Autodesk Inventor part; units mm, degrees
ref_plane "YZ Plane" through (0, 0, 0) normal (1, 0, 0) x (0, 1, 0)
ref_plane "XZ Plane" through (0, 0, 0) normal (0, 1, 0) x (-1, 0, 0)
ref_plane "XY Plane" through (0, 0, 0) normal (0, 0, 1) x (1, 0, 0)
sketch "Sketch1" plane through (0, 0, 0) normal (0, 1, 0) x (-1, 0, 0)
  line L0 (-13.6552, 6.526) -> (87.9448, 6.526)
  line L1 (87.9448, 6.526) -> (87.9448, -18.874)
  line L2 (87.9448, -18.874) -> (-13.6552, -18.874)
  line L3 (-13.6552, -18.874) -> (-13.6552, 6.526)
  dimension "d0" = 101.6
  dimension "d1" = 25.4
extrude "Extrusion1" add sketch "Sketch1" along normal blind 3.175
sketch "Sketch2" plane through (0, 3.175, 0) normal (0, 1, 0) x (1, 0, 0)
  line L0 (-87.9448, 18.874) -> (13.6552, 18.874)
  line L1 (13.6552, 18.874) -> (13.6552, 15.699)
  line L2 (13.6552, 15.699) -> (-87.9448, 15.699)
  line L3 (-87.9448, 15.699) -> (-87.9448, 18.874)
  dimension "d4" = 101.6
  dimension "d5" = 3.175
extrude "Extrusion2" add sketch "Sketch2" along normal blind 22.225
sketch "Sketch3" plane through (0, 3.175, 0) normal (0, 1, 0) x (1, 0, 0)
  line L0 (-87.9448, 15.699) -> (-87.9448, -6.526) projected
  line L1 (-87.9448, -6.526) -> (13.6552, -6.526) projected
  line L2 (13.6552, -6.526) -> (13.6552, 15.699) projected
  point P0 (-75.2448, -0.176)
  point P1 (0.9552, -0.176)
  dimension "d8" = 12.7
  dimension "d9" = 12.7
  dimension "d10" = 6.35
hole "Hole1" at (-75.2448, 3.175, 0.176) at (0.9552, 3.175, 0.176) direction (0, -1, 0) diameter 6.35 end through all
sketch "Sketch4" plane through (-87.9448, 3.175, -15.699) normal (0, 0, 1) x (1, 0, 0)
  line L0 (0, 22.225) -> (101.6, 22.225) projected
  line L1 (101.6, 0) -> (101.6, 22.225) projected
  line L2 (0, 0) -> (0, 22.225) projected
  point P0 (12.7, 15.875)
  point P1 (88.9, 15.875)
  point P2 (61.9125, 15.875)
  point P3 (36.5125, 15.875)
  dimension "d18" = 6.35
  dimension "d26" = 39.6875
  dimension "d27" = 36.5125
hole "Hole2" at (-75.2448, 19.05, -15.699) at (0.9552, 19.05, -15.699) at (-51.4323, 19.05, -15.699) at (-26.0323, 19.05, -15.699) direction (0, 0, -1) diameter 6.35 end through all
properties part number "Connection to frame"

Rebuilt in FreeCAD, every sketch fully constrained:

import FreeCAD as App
import Part
import Sketcher
from FreeCAD import Vector
Q = App.Units.Quantity

doc = App.newDocument("Part")
body = doc.addObject("PartDesign::Body", "Body")

sketch1 = doc.addObject("Sketcher::SketchObject", "Sketch")
body.addObject(sketch1)
sketch1.AttachmentSupport = (doc.XZ_Plane, [""])
sketch1.MapMode = "FlatFace"
sketch1.addGeometry([
    Part.LineSegment(Vector(-88, 7, 0), Vector(14, 7, 0)),
    Part.LineSegment(Vector(14, 7, 0), Vector(14, -19, 0)),
    Part.LineSegment(Vector(14, -19, 0), Vector(-88, -19, 0)),
    Part.LineSegment(Vector(-88, -19, 0), Vector(-88, 7, 0)),
], False)
sketch1.addConstraint([
    Sketcher.Constraint("Coincident", 0, 2, 1, 1),
    Sketcher.Constraint("Coincident", 1, 2, 2, 1),
    Sketcher.Constraint("Coincident", 2, 2, 3, 1),
    Sketcher.Constraint("Coincident", 3, 2, 0, 1),
    Sketcher.Constraint("Horizontal", 0),
    Sketcher.Constraint("Vertical", 1),
    Sketcher.Constraint("Horizontal", 2),
    Sketcher.Constraint("Vertical", 3),
    Sketcher.Constraint("DistanceX", 0, 1, 0, 2, Q("4 in")),
    Sketcher.Constraint("DistanceY", 1, 2, 1, 1, Q("1 in")),
    Sketcher.Constraint("DistanceX", -1, 1, 0, 2, Q("0.5376 in")),
    Sketcher.Constraint("DistanceY", -1, 1, 0, 2, Q("6.526 mm")),
])
pad1 = doc.addObject("PartDesign::Pad", "Pad")
body.addObject(pad1)
pad1.Profile = sketch1
pad1.Length = Q("0.125 in")
pad1.Reversed = True

sketch2 = doc.addObject("Sketcher::SketchObject", "Sketch001")
body.addObject(sketch2)
sketch2.AttachmentSupport = (doc.XZ_Plane, [""])
sketch2.MapMode = "FlatFace"
sketch2.AttachmentOffset = App.Placement(Vector(0, 0, -0.125 * 25.4), App.Rotation())
sketch2.addGeometry([
    Part.LineSegment(Vector(13.7, -18.9, 0), Vector(-87.9, -18.9, 0)),
    Part.LineSegment(Vector(-87.9, -18.9, 0), Vector(-87.9, -15.7, 0)),
    Part.LineSegment(Vector(-87.9, -15.7, 0), Vector(13.7, -15.7, 0)),
    Part.LineSegment(Vector(13.7, -15.7, 0), Vector(13.7, -18.9, 0)),
], False)
sketch2.addConstraint([
    Sketcher.Constraint("Coincident", 0, 2, 1, 1),
    Sketcher.Constraint("Coincident", 1, 2, 2, 1),
    Sketcher.Constraint("Coincident", 2, 2, 3, 1),
    Sketcher.Constraint("Coincident", 3, 2, 0, 1),
    Sketcher.Constraint("Horizontal", 0),
    Sketcher.Constraint("Vertical", 1),
    Sketcher.Constraint("Horizontal", 2),
    Sketcher.Constraint("Vertical", 3),
    Sketcher.Constraint("DistanceX", 0, 2, 0, 1, Q("4 in")),
    Sketcher.Constraint("DistanceY", 1, 1, 1, 2, Q("0.125 in")),
    Sketcher.Constraint("DistanceX", 0, 2, -1, 1, Q("3.4624 in")),
    Sketcher.Constraint("DistanceY", 0, 2, -1, 1, Q("18.874 mm")),
])
pad2 = doc.addObject("PartDesign::Pad", "Pad001")
body.addObject(pad2)
pad2.Profile = sketch2
pad2.Length = Q("0.875 in")
pad2.Reversed = True

sketch3 = doc.addObject("Sketcher::SketchObject", "Sketch002")
body.addObject(sketch3)
sketch3.AttachmentSupport = (doc.XZ_Plane, [""])
sketch3.MapMode = "FlatFace"
sketch3.AttachmentOffset = App.Placement(Vector(0, 0, -0.125 * 25.4), App.Rotation())
sketch3.addGeometry([
    Part.Circle(Vector(-75.2, 0.2, 0), Vector(0, 0, 1), 3.2),
    Part.Circle(Vector(1, 0.2, 0), Vector(0, 0, 1), 3.2),
], False)
sketch3.addConstraint([
    Sketcher.Constraint("Equal", 0, 1),
    Sketcher.Constraint("Horizontal", 0, 3, 1, 3),
    Sketcher.Constraint("Diameter", 0, Q("0.25 in")),
    Sketcher.Constraint("DistanceX", 0, 3, 1, 3, Q("3 in")),
    Sketcher.Constraint("DistanceX", 0, 3, -1, 1, Q("2.9624 in")),
    Sketcher.Constraint("DistanceY", -1, 1, 0, 3, Q("0.176 mm")),
])
doc.recompute()
hole = doc.addObject("PartDesign::Hole", "Hole")
body.addObject(hole)
hole.Profile = sketch3
hole.ThreadType = "None"
hole.Diameter = Q("0.25 in")
hole.DepthType = "ThroughAll"
hole.Reversed = True

sketch4 = doc.addObject("Sketcher::SketchObject", "Sketch003")
body.addObject(sketch4)
sketch4.AttachmentSupport = (doc.XY_Plane, [""])
sketch4.MapMode = "FlatFace"
sketch4.AttachmentOffset = App.Placement(Vector(0, 0, -15.699), App.Rotation())
sketch4.addGeometry([
    Part.Circle(Vector(-75.2, 19.1, 0), Vector(0, 0, 1), 3.2),
    Part.Circle(Vector(1, 19.1, 0), Vector(0, 0, 1), 3.2),
    Part.Circle(Vector(-51.4, 19.1, 0), Vector(0, 0, 1), 3.2),
    Part.Circle(Vector(-26, 19.1, 0), Vector(0, 0, 1), 3.2),
], False)
sketch4.addConstraint([
    Sketcher.Constraint("Equal", 0, 1),
    Sketcher.Constraint("Equal", 1, 2),
    Sketcher.Constraint("Equal", 2, 3),
    Sketcher.Constraint("Horizontal", 0, 3, 1, 3),
    Sketcher.Constraint("Horizontal", 1, 3, 2, 3),
    Sketcher.Constraint("Horizontal", 2, 3, 3, 3),
    Sketcher.Constraint("Diameter", 0, Q("0.25 in")),
    Sketcher.Constraint("DistanceX", 0, 3, 1, 3, Q("3 in")),
    Sketcher.Constraint("DistanceX", 2, 3, 3, 3, Q("1 in")),
    Sketcher.Constraint("DistanceY", -1, 1, 0, 3, Q("0.75 in")),
    Sketcher.Constraint("DistanceX", 0, 3, 2, 3, Q("0.9375 in")),
    Sketcher.Constraint("DistanceX", 0, 3, -1, 1, Q("2.9624 in")),
])
doc.recompute()
hole2 = doc.addObject("PartDesign::Hole", "Hole001")
body.addObject(hole2)
hole2.Profile = sketch4
hole2.ThreadType = "None"
hole2.Diameter = Q("0.25 in")
hole2.DepthType = "ThroughAll"

doc.recompute()
